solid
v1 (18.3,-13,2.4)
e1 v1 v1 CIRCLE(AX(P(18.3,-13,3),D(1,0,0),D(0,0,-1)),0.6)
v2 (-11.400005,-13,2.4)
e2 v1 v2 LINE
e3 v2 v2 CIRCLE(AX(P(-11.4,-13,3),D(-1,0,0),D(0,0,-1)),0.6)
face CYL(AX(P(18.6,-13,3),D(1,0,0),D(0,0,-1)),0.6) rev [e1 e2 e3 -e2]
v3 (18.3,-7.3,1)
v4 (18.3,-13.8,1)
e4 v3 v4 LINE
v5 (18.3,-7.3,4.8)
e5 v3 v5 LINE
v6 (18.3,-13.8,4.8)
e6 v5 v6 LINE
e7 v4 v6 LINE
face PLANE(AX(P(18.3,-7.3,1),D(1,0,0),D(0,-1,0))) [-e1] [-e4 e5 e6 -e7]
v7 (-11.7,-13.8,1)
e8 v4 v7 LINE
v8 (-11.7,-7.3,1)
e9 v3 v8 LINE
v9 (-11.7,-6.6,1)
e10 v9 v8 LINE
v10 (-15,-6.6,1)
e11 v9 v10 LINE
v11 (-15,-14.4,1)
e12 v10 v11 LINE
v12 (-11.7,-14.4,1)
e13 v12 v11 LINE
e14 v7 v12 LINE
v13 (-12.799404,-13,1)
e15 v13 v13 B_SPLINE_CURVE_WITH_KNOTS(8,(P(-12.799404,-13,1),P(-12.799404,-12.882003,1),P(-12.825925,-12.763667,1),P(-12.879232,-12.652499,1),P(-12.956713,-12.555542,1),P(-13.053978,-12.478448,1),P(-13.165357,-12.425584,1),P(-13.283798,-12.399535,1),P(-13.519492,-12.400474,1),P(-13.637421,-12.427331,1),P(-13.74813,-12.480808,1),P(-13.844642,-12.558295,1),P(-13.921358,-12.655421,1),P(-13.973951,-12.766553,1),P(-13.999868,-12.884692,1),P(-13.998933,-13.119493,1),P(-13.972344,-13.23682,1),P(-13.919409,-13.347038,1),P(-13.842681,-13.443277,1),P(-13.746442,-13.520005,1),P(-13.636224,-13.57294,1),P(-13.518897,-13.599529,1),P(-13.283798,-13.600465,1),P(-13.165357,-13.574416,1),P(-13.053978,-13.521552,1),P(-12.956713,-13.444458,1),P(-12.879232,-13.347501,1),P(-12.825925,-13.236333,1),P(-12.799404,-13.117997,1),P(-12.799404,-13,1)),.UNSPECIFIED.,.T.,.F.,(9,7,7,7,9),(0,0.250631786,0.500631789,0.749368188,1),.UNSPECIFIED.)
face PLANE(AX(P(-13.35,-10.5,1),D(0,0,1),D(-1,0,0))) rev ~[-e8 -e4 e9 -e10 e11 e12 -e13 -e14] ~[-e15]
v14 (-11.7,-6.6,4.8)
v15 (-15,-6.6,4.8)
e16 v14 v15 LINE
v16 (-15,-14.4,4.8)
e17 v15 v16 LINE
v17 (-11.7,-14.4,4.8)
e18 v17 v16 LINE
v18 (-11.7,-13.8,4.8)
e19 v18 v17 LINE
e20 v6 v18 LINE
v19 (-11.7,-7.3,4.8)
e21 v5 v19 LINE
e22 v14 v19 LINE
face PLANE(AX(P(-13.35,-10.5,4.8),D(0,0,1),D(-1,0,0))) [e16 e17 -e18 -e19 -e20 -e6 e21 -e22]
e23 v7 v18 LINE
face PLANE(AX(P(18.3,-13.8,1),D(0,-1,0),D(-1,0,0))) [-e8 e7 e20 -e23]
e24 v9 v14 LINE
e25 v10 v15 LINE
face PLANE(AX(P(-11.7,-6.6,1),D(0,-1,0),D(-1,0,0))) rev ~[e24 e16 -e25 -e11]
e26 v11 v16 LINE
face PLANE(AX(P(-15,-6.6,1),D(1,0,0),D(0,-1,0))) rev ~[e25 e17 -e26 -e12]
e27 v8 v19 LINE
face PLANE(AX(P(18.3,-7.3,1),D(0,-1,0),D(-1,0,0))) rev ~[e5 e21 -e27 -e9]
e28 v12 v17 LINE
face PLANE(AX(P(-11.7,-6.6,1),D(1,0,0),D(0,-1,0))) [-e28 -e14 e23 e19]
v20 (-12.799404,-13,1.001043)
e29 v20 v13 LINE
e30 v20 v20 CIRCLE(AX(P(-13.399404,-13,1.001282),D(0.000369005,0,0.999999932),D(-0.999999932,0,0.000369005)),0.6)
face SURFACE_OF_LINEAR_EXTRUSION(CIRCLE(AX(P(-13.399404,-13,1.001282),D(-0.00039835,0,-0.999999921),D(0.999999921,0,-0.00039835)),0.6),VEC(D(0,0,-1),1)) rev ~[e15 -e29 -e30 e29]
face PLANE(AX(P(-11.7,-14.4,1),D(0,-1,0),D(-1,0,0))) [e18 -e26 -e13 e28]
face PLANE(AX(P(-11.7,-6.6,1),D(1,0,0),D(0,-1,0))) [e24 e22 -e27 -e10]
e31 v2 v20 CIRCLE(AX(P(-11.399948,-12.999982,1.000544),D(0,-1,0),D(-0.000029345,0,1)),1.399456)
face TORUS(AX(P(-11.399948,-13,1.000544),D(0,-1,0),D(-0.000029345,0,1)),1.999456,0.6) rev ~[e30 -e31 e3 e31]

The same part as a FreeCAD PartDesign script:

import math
import FreeCAD as App
import Part
import Sketcher
from FreeCAD import Vector
Q = App.Units.Quantity

doc = App.newDocument("Part")
params = doc.addObject("Spreadsheet::Sheet", "Params")
for row, (alias, value) in enumerate([
    ("sketch1_diameter", "1.2 mm"),
    ("sketch3_diameter", "1.2 mm"),
    ("pad1_length", "30 mm"),
    ("sketch4_width", "3.3 mm"),
    ("sketch4_height", "7.8 mm"),
    ("pad2_length", "3.8 mm"),
    ("sketch5_width", "30 mm"),
    ("sketch5_height", "6.5 mm"),
    ("pad3_length", "3.8 mm"),
], start=1):
    params.set(f"A{row}", alias)
    params.set(f"B{row}", "=" + value)
    params.setAlias(f"B{row}", alias)

body = doc.addObject("PartDesign::Body", "Body")

# Sketch on YZ plane
sketch1 = body.newObject("Sketcher::SketchObject", "Sketch")
sketch1.AttachmentSupport = (doc.getObject("YZ_Plane"), [""])
sketch1.MapMode = "FlatFace"
sketch1.addGeometry(Part.Circle(Vector(0, 0, 0), Vector(0, 0, 1), 0.6), False)
sketch1.addConstraint(Sketcher.Constraint("Coincident", 0, 3, -1, 1))
sketch1.addConstraint(Sketcher.Constraint("Diameter", 0, Q("1.2 mm")))
sketch1.setExpression("Constraints[1]", "Params.sketch1_diameter")

# Sketch on XY plane
sketch2 = body.newObject("Sketcher::SketchObject", "Sketch001")
sketch2.AttachmentSupport = (doc.getObject("XY_Plane"), [""])
sketch2.MapMode = "FlatFace"
sketch2.addGeometry(Part.LineSegment(Vector(0, 0, 0), Vector(2, 0, 0)), False)
sketch2.addGeometry(Part.ArcOfCircle(Part.Circle(Vector(2, 2, 0), Vector(0, 0, 1), 2), math.radians(-90), math.radians(0)), False)
sketch2.addGeometry(Part.LineSegment(Vector(4, 2, 0), Vector(4, 4, 0)), False)
sketch2.addConstraint(Sketcher.Constraint("Coincident", 0, 2, 1, 1))
sketch2.addConstraint(Sketcher.Constraint("Coincident", 1, 2, 2, 1))
sketch2.addConstraint(Sketcher.Constraint("Horizontal", 0))
sketch2.addConstraint(Sketcher.Constraint("Vertical", 2))
sketch2.addConstraint(Sketcher.Constraint("Coincident", 0, 1, -1, 1))
sketch2.addConstraint(Sketcher.Constraint("Radius", 1, Q("1.999456 mm")))
sketch2.addConstraint(Sketcher.Constraint("DistanceY", 2, 1, 2, 2, Q("2.000912 mm")))
sketch2.addConstraint(Sketcher.Constraint("DistanceX", 0, 1, 0, 2, Q("2.000007 mm")))
sketch2.addConstraint(Sketcher.Constraint("DistanceX", -1, 1, 1, 3, Q("1.999948 mm")))
sketch2.addConstraint(Sketcher.Constraint("DistanceY", -1, 1, 1, 2, Q("1.998718 mm")))
doc.recompute()

additivepipe = body.newObject("PartDesign::AdditivePipe", "AdditivePipe")
additivepipe.Profile = sketch1
additivepipe.Spine = (sketch2, ["Edge1", "Edge2", "Edge3"])
additivepipe.Transition = "Right corner"
body2 = doc.addObject("PartDesign::Body", "Body001")
doc.recompute()

body.Placement = App.Placement(Vector(0, 0, 0), App.Rotation(Vector(1, 0, 0), 270))
boolean = body2.newObject("PartDesign::Boolean", "Boolean")
boolean.Type = "Fuse"
boolean.addObjects([body])
body3 = doc.addObject("PartDesign::Body", "Body002")
doc.recompute()

body2.Placement = App.Placement(Vector(11, 3.4, 2), App.Rotation(Vector(0, 0, 1), 0))
boolean2 = body3.newObject("PartDesign::Boolean", "Boolean001")
boolean2.Type = "Fuse"
boolean2.addObjects([body2])
body4 = doc.addObject("PartDesign::Body", "Body003")

# Sketch on XY plane
sketch3 = body4.newObject("Sketcher::SketchObject", "Sketch002")
sketch3.AttachmentSupport = (doc.getObject("XY_Plane003"), [""])
sketch3.MapMode = "FlatFace"
sketch3.addGeometry(Part.Circle(Vector(0, 0, 0), Vector(0, 0, 1), 0.6), False)
sketch3.addConstraint(Sketcher.Constraint("Coincident", 0, 3, -1, 1))
sketch3.addConstraint(Sketcher.Constraint("Diameter", 0, Q("1.2 mm")))
sketch3.setExpression("Constraints[1]", "Params.sketch3_diameter")
pad1 = body4.newObject("PartDesign::Pad", "Pad")
pad1.Profile = sketch3
pad1.setExpression("Length", "Params.pad1_length")
body5 = doc.addObject("PartDesign::Body", "Body004")
doc.recompute()

body4.Placement = App.Placement(Vector(0, 0, 0), App.Rotation(Vector(0, 1, 0), 90))
boolean3 = body5.newObject("PartDesign::Boolean", "Boolean002")
boolean3.Type = "Fuse"
boolean3.addObjects([body4])
body6 = doc.addObject("PartDesign::Body", "Body005")
doc.recompute()

body5.Placement = App.Placement(Vector(-17, 3.4, 2), App.Rotation(Vector(0, 0, 1), 0))
boolean4 = body6.newObject("PartDesign::Boolean", "Boolean003")
boolean4.Type = "Fuse"
boolean4.addObjects([body5])
doc.recompute()

boolean5 = body6.newObject("PartDesign::Boolean", "Boolean004")
boolean5.Type = "Fuse"
boolean5.addObjects([body3])
body7 = doc.addObject("PartDesign::Body", "Body006")
doc.recompute()

body6.Placement = App.Placement(Vector(-1.3, 2.5, 0), App.Rotation(Vector(0, 0, 1), 0))
boolean6 = body7.newObject("PartDesign::Boolean", "Boolean005")
boolean6.Type = "Fuse"
boolean6.addObjects([body6])
body8 = doc.addObject("PartDesign::Body", "Body007")

# Sketch on XY plane
sketch4 = body8.newObject("Sketcher::SketchObject", "Sketch003")
sketch4.AttachmentSupport = (doc.getObject("XY_Plane007"), [""])
sketch4.MapMode = "FlatFace"
sketch4.addGeometry(Part.LineSegment(Vector(12, 7.3, 0), Vector(12, -0.5, 0)), False)
sketch4.addGeometry(Part.LineSegment(Vector(12, -0.5, 0), Vector(15.3, -0.5, 0)), False)
sketch4.addGeometry(Part.LineSegment(Vector(15.3, -0.5, 0), Vector(15.3, 7.3, 0)), False)
sketch4.addGeometry(Part.LineSegment(Vector(15.3, 7.3, 0), Vector(12, 7.3, 0)), False)
sketch4.addConstraint(Sketcher.Constraint("Coincident", 0, 2, 1, 1))
sketch4.addConstraint(Sketcher.Constraint("Coincident", 1, 2, 2, 1))
sketch4.addConstraint(Sketcher.Constraint("Coincident", 2, 2, 3, 1))
sketch4.addConstraint(Sketcher.Constraint("Coincident", 3, 2, 0, 1))
sketch4.addConstraint(Sketcher.Constraint("Vertical", 0))
sketch4.addConstraint(Sketcher.Constraint("Horizontal", 1))
sketch4.addConstraint(Sketcher.Constraint("Vertical", 2))
sketch4.addConstraint(Sketcher.Constraint("Horizontal", 3))
sketch4.addConstraint(Sketcher.Constraint("DistanceX", 1, 1, 1, 2, Q("3.3 mm")))
sketch4.addConstraint(Sketcher.Constraint("DistanceY", 0, 2, 0, 1, Q("7.8 mm")))
sketch4.addConstraint(Sketcher.Constraint("DistanceX", -1, 1, 0, 2, Q("12 mm")))
sketch4.addConstraint(Sketcher.Constraint("DistanceY", 0, 2, -1, 1, Q("0.5 mm")))
sketch4.setExpression("Constraints[8]", "Params.sketch4_width")
sketch4.setExpression("Constraints[9]", "Params.sketch4_height")
pad2 = body8.newObject("PartDesign::Pad", "Pad001")
pad2.Profile = sketch4
pad2.setExpression("Length", "Params.pad2_length")
body9 = doc.addObject("PartDesign::Body", "Body008")

# Sketch on XY plane
sketch5 = body9.newObject("Sketcher::SketchObject", "Sketch004")
sketch5.AttachmentSupport = (doc.getObject("XY_Plane008"), [""])
sketch5.MapMode = "FlatFace"
sketch5.addGeometry(Part.LineSegment(Vector(-18, 7, 0), Vector(-18, 0, 0)), False)
sketch5.addGeometry(Part.LineSegment(Vector(-18, 0, 0), Vector(12, 0, 0)), False)
sketch5.addGeometry(Part.LineSegment(Vector(12, 0, 0), Vector(12, 7, 0)), False)
sketch5.addGeometry(Part.LineSegment(Vector(12, 7, 0), Vector(-18, 7, 0)), False)
sketch5.addConstraint(Sketcher.Constraint("Coincident", 0, 2, 1, 1))
sketch5.addConstraint(Sketcher.Constraint("Coincident", 1, 2, 2, 1))
sketch5.addConstraint(Sketcher.Constraint("Coincident", 2, 2, 3, 1))
sketch5.addConstraint(Sketcher.Constraint("Coincident", 3, 2, 0, 1))
sketch5.addConstraint(Sketcher.Constraint("Vertical", 0))
sketch5.addConstraint(Sketcher.Constraint("Horizontal", 1))
sketch5.addConstraint(Sketcher.Constraint("Vertical", 2))
sketch5.addConstraint(Sketcher.Constraint("Horizontal", 3))
sketch5.addConstraint(Sketcher.Constraint("DistanceX", 1, 1, 1, 2, Q("30 mm")))
sketch5.addConstraint(Sketcher.Constraint("DistanceY", 0, 2, 0, 1, Q("6.5 mm")))
sketch5.addConstraint(Sketcher.Constraint("DistanceX", 0, 2, -1, 1, Q("18 mm")))
sketch5.addConstraint(Sketcher.Constraint("DistanceY", -1, 1, 0, 2, Q("0.2 mm")))
sketch5.setExpression("Constraints[8]", "Params.sketch5_width")
sketch5.setExpression("Constraints[9]", "Params.sketch5_height")
pad3 = body9.newObject("PartDesign::Pad", "Pad002")
pad3.Profile = sketch5
pad3.setExpression("Length", "Params.pad3_length")
doc.recompute()

boolean7 = body9.newObject("PartDesign::Boolean", "Boolean006")
boolean7.Type = "Fuse"
boolean7.addObjects([body8])
doc.recompute()

boolean8 = body9.newObject("PartDesign::Boolean", "Boolean007")
boolean8.Type = "Cut"
boolean8.addObjects([body7])
body10 = doc.addObject("PartDesign::Body", "Body009")
doc.recompute()

body9.Placement = App.Placement(Vector(0.3, -7.1, 1), App.Rotation(Vector(0, 0, 1), 180))
boolean9 = body10.newObject("PartDesign::Boolean", "Boolean008")
boolean9.Type = "Fuse"
boolean9.addObjects([body9])

doc.recompute()
